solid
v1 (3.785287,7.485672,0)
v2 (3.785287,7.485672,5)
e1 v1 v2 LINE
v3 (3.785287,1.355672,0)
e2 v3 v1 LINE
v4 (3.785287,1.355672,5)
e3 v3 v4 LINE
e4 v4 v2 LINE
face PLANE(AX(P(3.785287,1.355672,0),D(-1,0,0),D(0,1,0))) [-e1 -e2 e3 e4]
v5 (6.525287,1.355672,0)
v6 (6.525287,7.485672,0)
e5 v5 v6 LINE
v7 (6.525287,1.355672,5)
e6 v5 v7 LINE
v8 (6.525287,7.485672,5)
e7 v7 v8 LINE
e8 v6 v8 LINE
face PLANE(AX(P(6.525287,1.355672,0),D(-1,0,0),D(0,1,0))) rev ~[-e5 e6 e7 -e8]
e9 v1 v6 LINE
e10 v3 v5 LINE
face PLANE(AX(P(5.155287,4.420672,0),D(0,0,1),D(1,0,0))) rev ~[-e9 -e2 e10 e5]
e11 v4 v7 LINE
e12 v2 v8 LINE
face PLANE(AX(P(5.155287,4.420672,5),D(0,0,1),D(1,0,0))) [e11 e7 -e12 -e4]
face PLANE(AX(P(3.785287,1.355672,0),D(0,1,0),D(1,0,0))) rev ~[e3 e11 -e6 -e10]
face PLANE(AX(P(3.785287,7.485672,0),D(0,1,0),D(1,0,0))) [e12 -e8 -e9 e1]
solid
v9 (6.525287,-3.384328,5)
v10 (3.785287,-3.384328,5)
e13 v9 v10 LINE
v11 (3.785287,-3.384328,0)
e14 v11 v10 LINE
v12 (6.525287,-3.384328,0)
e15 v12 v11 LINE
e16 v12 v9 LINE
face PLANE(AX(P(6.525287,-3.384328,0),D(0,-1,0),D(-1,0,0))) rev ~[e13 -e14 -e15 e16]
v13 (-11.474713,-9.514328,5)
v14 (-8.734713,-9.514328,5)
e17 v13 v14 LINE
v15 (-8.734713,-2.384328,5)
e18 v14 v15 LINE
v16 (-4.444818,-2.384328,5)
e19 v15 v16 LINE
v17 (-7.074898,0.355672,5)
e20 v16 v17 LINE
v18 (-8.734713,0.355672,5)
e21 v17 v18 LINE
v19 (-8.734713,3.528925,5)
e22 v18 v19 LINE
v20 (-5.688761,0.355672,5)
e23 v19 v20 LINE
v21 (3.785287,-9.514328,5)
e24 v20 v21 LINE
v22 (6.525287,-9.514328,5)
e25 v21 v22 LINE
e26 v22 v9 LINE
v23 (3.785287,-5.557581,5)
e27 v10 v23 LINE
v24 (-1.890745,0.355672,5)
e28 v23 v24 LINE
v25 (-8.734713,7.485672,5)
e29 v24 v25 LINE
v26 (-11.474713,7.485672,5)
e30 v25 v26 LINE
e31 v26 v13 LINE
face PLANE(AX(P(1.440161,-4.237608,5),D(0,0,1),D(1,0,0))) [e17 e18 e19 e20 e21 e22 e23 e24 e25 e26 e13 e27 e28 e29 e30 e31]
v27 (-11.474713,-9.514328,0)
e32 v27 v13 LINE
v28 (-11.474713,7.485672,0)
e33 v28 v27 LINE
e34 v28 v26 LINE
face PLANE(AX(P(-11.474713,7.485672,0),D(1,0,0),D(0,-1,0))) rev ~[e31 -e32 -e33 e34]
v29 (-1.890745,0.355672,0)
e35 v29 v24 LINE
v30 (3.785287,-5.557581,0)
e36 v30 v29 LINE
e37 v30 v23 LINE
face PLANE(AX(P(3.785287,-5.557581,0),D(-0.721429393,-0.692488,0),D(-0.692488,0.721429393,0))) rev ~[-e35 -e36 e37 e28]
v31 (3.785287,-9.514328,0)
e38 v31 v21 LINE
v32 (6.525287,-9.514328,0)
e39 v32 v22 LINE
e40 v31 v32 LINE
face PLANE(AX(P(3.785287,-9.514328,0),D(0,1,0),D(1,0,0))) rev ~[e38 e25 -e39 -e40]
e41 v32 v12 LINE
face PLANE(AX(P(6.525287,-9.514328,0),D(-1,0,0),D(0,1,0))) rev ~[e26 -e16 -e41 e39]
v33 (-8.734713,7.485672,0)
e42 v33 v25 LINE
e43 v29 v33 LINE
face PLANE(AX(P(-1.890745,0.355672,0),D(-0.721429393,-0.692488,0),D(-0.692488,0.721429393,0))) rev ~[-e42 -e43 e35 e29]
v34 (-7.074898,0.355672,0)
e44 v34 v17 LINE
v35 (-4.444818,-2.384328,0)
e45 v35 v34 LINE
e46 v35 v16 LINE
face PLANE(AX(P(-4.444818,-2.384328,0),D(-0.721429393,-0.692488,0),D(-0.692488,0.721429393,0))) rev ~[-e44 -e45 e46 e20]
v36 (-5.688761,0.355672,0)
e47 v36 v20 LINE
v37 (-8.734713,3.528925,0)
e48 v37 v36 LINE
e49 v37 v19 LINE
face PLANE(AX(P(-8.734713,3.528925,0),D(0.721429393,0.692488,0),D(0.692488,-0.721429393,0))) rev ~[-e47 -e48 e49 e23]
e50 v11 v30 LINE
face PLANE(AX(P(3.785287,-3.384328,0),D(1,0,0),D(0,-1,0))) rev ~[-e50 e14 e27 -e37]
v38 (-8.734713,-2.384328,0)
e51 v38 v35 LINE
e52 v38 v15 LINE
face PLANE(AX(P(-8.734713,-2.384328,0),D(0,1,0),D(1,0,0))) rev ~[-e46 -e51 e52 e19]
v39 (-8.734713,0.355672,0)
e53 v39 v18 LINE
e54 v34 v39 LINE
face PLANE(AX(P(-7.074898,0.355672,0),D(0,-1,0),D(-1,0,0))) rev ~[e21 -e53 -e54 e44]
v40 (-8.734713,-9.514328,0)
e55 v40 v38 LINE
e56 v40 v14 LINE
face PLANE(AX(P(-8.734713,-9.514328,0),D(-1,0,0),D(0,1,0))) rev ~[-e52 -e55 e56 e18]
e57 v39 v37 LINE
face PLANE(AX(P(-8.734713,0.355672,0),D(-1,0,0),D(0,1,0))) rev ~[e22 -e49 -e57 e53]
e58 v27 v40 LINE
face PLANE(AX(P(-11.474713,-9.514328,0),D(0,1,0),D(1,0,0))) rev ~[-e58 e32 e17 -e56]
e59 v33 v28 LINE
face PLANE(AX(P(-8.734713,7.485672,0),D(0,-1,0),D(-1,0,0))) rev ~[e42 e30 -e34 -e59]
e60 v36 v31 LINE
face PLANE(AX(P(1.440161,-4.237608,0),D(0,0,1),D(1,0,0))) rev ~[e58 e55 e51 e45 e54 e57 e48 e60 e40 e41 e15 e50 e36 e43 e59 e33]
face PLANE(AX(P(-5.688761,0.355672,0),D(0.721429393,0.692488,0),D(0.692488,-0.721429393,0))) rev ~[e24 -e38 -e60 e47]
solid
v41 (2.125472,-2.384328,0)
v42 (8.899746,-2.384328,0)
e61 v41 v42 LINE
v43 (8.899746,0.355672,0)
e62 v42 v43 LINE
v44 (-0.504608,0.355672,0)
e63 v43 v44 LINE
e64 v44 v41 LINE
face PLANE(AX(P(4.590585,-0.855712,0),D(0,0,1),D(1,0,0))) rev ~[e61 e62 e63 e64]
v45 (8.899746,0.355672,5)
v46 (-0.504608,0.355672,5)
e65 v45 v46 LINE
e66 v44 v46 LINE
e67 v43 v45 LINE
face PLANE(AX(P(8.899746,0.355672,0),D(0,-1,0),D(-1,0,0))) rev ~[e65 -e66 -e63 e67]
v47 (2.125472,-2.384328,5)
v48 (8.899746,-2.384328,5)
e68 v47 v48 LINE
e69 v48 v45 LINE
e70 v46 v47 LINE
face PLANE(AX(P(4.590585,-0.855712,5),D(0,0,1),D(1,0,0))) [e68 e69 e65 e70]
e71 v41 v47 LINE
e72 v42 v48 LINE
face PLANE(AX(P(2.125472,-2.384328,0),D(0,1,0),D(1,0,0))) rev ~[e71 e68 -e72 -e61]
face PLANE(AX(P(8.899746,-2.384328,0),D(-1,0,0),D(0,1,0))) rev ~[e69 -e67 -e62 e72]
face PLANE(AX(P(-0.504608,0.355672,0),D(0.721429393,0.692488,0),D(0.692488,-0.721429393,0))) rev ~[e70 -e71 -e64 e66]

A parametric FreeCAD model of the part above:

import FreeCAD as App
import Part
import Sketcher

doc = App.newDocument("Part")
body = doc.addObject("PartDesign::Body", "Body")

sketch1 = body.newObject("Sketcher::SketchObject", "Sketch")
sketch1.AttachmentSupport = (doc.getObject("XY_Plane"), [""])
sketch1.MapMode = "FlatFace"
sketch1.addGeometry(Part.LineSegment(App.Vector(3.8, -5.6, 0), App.Vector(-1.9, 0.4, 0)), False)
sketch1.addGeometry(Part.LineSegment(App.Vector(-1.9, 0.4, 0), App.Vector(-8.7, 7.5, 0)), False)
sketch1.addGeometry(Part.LineSegment(App.Vector(-8.7, 7.5, 0), App.Vector(-11.5, 7.5, 0)), False)
sketch1.addGeometry(Part.LineSegment(App.Vector(-11.5, 7.5, 0), App.Vector(-11.5, -9.5, 0)), False)
sketch1.addGeometry(Part.LineSegment(App.Vector(-11.5, -9.5, 0), App.Vector(-8.7, -9.5, 0)), False)
sketch1.addGeometry(Part.LineSegment(App.Vector(-8.7, -9.5, 0), App.Vector(-8.7, -2.4, 0)), False)
sketch1.addGeometry(Part.LineSegment(App.Vector(-8.7, -2.4, 0), App.Vector(-4.4, -2.4, 0)), False)
sketch1.addGeometry(Part.LineSegment(App.Vector(-4.4, -2.4, 0), App.Vector(-7.1, 0.4, 0)), False)
sketch1.addGeometry(Part.LineSegment(App.Vector(-7.1, 0.4, 0), App.Vector(-8.7, 0.4, 0)), False)
sketch1.addGeometry(Part.LineSegment(App.Vector(-8.7, 0.4, 0), App.Vector(-8.7, 3.5, 0)), False)
sketch1.addGeometry(Part.LineSegment(App.Vector(-8.7, 3.5, 0), App.Vector(-5.7, 0.4, 0)), False)
sketch1.addGeometry(Part.LineSegment(App.Vector(-5.7, 0.4, 0), App.Vector(3.8, -9.5, 0)), False)
sketch1.addGeometry(Part.LineSegment(App.Vector(3.8, -9.5, 0), App.Vector(6.5, -9.5, 0)), False)
sketch1.addGeometry(Part.LineSegment(App.Vector(6.5, -9.5, 0), App.Vector(6.5, -3.4, 0)), False)
sketch1.addGeometry(Part.LineSegment(App.Vector(6.5, -3.4, 0), App.Vector(3.8, -3.4, 0)), False)
sketch1.addGeometry(Part.LineSegment(App.Vector(3.8, -3.4, 0), App.Vector(3.8, -5.6, 0)), False)
sketch1.addConstraint(Sketcher.Constraint("Coincident", 0, 2, 1, 1))
sketch1.addConstraint(Sketcher.Constraint("Coincident", 1, 2, 2, 1))
sketch1.addConstraint(Sketcher.Constraint("Coincident", 2, 2, 3, 1))
sketch1.addConstraint(Sketcher.Constraint("Coincident", 3, 2, 4, 1))
sketch1.addConstraint(Sketcher.Constraint("Coincident", 4, 2, 5, 1))
sketch1.addConstraint(Sketcher.Constraint("Coincident", 5, 2, 6, 1))
sketch1.addConstraint(Sketcher.Constraint("Coincident", 6, 2, 7, 1))
sketch1.addConstraint(Sketcher.Constraint("Coincident", 7, 2, 8, 1))
sketch1.addConstraint(Sketcher.Constraint("Coincident", 8, 2, 9, 1))
sketch1.addConstraint(Sketcher.Constraint("Coincident", 9, 2, 10, 1))
sketch1.addConstraint(Sketcher.Constraint("Coincident", 10, 2, 11, 1))
sketch1.addConstraint(Sketcher.Constraint("Coincident", 11, 2, 12, 1))
sketch1.addConstraint(Sketcher.Constraint("Coincident", 12, 2, 13, 1))
sketch1.addConstraint(Sketcher.Constraint("Coincident", 13, 2, 14, 1))
sketch1.addConstraint(Sketcher.Constraint("Coincident", 14, 2, 15, 1))
sketch1.addConstraint(Sketcher.Constraint("Coincident", 15, 2, 0, 1))
sketch1.addConstraint(Sketcher.Constraint("Horizontal", 2))
sketch1.addConstraint(Sketcher.Constraint("Vertical", 3))
sketch1.addConstraint(Sketcher.Constraint("Horizontal", 4))
sketch1.addConstraint(Sketcher.Constraint("Vertical", 5))
sketch1.addConstraint(Sketcher.Constraint("Horizontal", 6))
sketch1.addConstraint(Sketcher.Constraint("Horizontal", 8))
sketch1.addConstraint(Sketcher.Constraint("Vertical", 9))
sketch1.addConstraint(Sketcher.Constraint("Horizontal", 12))
sketch1.addConstraint(Sketcher.Constraint("Vertical", 13))
sketch1.addConstraint(Sketcher.Constraint("Horizontal", 14))
sketch1.addConstraint(Sketcher.Constraint("Vertical", 15))
sketch1.addConstraint(Sketcher.Constraint("Parallel", 0, 1))
sketch1.addConstraint(Sketcher.Constraint("Parallel", 1, 7))
sketch1.addConstraint(Sketcher.Constraint("Parallel", 7, 10))
sketch1.addConstraint(Sketcher.Constraint("Parallel", 10, 11))
sketch1.addConstraint(Sketcher.Constraint("Horizontal", 0, 2, 7, 2))
sketch1.addConstraint(Sketcher.Constraint("Horizontal", 8, 2, 10, 2))
sketch1.addConstraint(Sketcher.Constraint("Horizontal", 4, 2, 11, 2))
sketch1.addConstraint(Sketcher.Constraint("Vertical", 1, 2, 4, 2))
sketch1.addConstraint(Sketcher.Constraint("Vertical", 5, 2, 8, 2))
sketch1.addConstraint(Sketcher.Constraint("Vertical", 11, 2, 14, 2))
sketch1.addConstraint(Sketcher.Constraint("Equal", 4, 12))
sketch1.addConstraint(Sketcher.Constraint("DistanceY", 3, 2, 3, 1, 17.0))
sketch1.addConstraint(Sketcher.Constraint("DistanceY", 13, 2, 6, 2, 1.0))
sketch1.addConstraint(Sketcher.Constraint("DistanceX", 2, 2, 2, 1, 2.74))
sketch1.addConstraint(Sketcher.Constraint("DistanceY", 5, 1, 5, 2, 7.13))
sketch1.addConstraint(Sketcher.Constraint("DistanceY", 0, 2, 1, 2, 7.13))
sketch1.addConstraint(Sketcher.Constraint("DistanceX", 4, 2, 11, 2, 12.52))
sketch1.addConstraint(Sketcher.Constraint("Distance", 0, 8.196579))
sketch1.addConstraint(Sketcher.Constraint("DistanceX", 6, 1, 6, 2, 4.289895))
sketch1.addConstraint(Sketcher.Constraint("DistanceX", 10, 2, -1, 1, 5.688761))
sketch1.addConstraint(Sketcher.Constraint("DistanceY", 15, 2, -1, 1, 5.557581))
pad1 = body.newObject("PartDesign::Pad", "Pad")
pad1.Profile = sketch1
pad1.Length = 5
body2 = doc.addObject("PartDesign::Body", "Body001")

sketch2 = body2.newObject("Sketcher::SketchObject", "Sketch001")
sketch2.AttachmentSupport = (doc.getObject("XY_Plane001"), [""])
sketch2.MapMode = "FlatFace"
sketch2.addGeometry(Part.LineSegment(App.Vector(3.8, 7.5, 0), App.Vector(3.8, 1.4, 0)), False)
sketch2.addGeometry(Part.LineSegment(App.Vector(3.8, 1.4, 0), App.Vector(6.5, 1.4, 0)), False)
sketch2.addGeometry(Part.LineSegment(App.Vector(6.5, 1.4, 0), App.Vector(6.5, 7.5, 0)), False)
sketch2.addGeometry(Part.LineSegment(App.Vector(6.5, 7.5, 0), App.Vector(3.8, 7.5, 0)), False)
sketch2.addConstraint(Sketcher.Constraint("Coincident", 0, 2, 1, 1))
sketch2.addConstraint(Sketcher.Constraint("Coincident", 1, 2, 2, 1))
sketch2.addConstraint(Sketcher.Constraint("Coincident", 2, 2, 3, 1))
sketch2.addConstraint(Sketcher.Constraint("Coincident", 3, 2, 0, 1))
sketch2.addConstraint(Sketcher.Constraint("Vertical", 0))
sketch2.addConstraint(Sketcher.Constraint("Horizontal", 1))
sketch2.addConstraint(Sketcher.Constraint("Vertical", 2))
sketch2.addConstraint(Sketcher.Constraint("Horizontal", 3))
sketch2.addConstraint(Sketcher.Constraint("DistanceX", 1, 1, 1, 2, 2.74))
sketch2.addConstraint(Sketcher.Constraint("DistanceY", 0, 2, 0, 1, 6.13))
sketch2.addConstraint(Sketcher.Constraint("DistanceX", -1, 1, 0, 2, 3.785287))
sketch2.addConstraint(Sketcher.Constraint("DistanceY", -1, 1, 0, 2, 1.355672))
pad2 = body2.newObject("PartDesign::Pad", "Pad001")
pad2.Profile = sketch2
pad2.Length = 5
body3 = doc.addObject("PartDesign::Body", "Body002")

sketch3 = body3.newObject("Sketcher::SketchObject", "Sketch002")
sketch3.AttachmentSupport = (doc.getObject("XY_Plane002"), [""])
sketch3.MapMode = "FlatFace"
sketch3.addGeometry(Part.LineSegment(App.Vector(8.9, -2.4, 0), App.Vector(8.9, 0.4, 0)), False)
sketch3.addGeometry(Part.LineSegment(App.Vector(8.9, 0.4, 0), App.Vector(-0.5, 0.4, 0)), False)
sketch3.addGeometry(Part.LineSegment(App.Vector(-0.5, 0.4, 0), App.Vector(2.1, -2.4, 0)), False)
sketch3.addGeometry(Part.LineSegment(App.Vector(2.1, -2.4, 0), App.Vector(8.9, -2.4, 0)), False)
sketch3.addConstraint(Sketcher.Constraint("Coincident", 0, 2, 1, 1))
sketch3.addConstraint(Sketcher.Constraint("Coincident", 1, 2, 2, 1))
sketch3.addConstraint(Sketcher.Constraint("Coincident", 2, 2, 3, 1))
sketch3.addConstraint(Sketcher.Constraint("Coincident", 3, 2, 0, 1))
sketch3.addConstraint(Sketcher.Constraint("Vertical", 0))
sketch3.addConstraint(Sketcher.Constraint("Horizontal", 1))
sketch3.addConstraint(Sketcher.Constraint("Horizontal", 3))
sketch3.addConstraint(Sketcher.Constraint("DistanceY", 0, 1, 0, 2, 2.74))
sketch3.addConstraint(Sketcher.Constraint("DistanceX", 1, 2, 1, 1, 9.404354))
sketch3.addConstraint(Sketcher.Constraint("DistanceX", 3, 1, 3, 2, 6.774274))
sketch3.addConstraint(Sketcher.Constraint("DistanceX", 1, 2, -1, 1, 0.504608))
sketch3.addConstraint(Sketcher.Constraint("DistanceY", -1, 1, 0, 2, 0.355672))
pad3 = body3.newObject("PartDesign::Pad", "Pad002")
pad3.Profile = sketch3
pad3.Length = 5

doc.recompute()
